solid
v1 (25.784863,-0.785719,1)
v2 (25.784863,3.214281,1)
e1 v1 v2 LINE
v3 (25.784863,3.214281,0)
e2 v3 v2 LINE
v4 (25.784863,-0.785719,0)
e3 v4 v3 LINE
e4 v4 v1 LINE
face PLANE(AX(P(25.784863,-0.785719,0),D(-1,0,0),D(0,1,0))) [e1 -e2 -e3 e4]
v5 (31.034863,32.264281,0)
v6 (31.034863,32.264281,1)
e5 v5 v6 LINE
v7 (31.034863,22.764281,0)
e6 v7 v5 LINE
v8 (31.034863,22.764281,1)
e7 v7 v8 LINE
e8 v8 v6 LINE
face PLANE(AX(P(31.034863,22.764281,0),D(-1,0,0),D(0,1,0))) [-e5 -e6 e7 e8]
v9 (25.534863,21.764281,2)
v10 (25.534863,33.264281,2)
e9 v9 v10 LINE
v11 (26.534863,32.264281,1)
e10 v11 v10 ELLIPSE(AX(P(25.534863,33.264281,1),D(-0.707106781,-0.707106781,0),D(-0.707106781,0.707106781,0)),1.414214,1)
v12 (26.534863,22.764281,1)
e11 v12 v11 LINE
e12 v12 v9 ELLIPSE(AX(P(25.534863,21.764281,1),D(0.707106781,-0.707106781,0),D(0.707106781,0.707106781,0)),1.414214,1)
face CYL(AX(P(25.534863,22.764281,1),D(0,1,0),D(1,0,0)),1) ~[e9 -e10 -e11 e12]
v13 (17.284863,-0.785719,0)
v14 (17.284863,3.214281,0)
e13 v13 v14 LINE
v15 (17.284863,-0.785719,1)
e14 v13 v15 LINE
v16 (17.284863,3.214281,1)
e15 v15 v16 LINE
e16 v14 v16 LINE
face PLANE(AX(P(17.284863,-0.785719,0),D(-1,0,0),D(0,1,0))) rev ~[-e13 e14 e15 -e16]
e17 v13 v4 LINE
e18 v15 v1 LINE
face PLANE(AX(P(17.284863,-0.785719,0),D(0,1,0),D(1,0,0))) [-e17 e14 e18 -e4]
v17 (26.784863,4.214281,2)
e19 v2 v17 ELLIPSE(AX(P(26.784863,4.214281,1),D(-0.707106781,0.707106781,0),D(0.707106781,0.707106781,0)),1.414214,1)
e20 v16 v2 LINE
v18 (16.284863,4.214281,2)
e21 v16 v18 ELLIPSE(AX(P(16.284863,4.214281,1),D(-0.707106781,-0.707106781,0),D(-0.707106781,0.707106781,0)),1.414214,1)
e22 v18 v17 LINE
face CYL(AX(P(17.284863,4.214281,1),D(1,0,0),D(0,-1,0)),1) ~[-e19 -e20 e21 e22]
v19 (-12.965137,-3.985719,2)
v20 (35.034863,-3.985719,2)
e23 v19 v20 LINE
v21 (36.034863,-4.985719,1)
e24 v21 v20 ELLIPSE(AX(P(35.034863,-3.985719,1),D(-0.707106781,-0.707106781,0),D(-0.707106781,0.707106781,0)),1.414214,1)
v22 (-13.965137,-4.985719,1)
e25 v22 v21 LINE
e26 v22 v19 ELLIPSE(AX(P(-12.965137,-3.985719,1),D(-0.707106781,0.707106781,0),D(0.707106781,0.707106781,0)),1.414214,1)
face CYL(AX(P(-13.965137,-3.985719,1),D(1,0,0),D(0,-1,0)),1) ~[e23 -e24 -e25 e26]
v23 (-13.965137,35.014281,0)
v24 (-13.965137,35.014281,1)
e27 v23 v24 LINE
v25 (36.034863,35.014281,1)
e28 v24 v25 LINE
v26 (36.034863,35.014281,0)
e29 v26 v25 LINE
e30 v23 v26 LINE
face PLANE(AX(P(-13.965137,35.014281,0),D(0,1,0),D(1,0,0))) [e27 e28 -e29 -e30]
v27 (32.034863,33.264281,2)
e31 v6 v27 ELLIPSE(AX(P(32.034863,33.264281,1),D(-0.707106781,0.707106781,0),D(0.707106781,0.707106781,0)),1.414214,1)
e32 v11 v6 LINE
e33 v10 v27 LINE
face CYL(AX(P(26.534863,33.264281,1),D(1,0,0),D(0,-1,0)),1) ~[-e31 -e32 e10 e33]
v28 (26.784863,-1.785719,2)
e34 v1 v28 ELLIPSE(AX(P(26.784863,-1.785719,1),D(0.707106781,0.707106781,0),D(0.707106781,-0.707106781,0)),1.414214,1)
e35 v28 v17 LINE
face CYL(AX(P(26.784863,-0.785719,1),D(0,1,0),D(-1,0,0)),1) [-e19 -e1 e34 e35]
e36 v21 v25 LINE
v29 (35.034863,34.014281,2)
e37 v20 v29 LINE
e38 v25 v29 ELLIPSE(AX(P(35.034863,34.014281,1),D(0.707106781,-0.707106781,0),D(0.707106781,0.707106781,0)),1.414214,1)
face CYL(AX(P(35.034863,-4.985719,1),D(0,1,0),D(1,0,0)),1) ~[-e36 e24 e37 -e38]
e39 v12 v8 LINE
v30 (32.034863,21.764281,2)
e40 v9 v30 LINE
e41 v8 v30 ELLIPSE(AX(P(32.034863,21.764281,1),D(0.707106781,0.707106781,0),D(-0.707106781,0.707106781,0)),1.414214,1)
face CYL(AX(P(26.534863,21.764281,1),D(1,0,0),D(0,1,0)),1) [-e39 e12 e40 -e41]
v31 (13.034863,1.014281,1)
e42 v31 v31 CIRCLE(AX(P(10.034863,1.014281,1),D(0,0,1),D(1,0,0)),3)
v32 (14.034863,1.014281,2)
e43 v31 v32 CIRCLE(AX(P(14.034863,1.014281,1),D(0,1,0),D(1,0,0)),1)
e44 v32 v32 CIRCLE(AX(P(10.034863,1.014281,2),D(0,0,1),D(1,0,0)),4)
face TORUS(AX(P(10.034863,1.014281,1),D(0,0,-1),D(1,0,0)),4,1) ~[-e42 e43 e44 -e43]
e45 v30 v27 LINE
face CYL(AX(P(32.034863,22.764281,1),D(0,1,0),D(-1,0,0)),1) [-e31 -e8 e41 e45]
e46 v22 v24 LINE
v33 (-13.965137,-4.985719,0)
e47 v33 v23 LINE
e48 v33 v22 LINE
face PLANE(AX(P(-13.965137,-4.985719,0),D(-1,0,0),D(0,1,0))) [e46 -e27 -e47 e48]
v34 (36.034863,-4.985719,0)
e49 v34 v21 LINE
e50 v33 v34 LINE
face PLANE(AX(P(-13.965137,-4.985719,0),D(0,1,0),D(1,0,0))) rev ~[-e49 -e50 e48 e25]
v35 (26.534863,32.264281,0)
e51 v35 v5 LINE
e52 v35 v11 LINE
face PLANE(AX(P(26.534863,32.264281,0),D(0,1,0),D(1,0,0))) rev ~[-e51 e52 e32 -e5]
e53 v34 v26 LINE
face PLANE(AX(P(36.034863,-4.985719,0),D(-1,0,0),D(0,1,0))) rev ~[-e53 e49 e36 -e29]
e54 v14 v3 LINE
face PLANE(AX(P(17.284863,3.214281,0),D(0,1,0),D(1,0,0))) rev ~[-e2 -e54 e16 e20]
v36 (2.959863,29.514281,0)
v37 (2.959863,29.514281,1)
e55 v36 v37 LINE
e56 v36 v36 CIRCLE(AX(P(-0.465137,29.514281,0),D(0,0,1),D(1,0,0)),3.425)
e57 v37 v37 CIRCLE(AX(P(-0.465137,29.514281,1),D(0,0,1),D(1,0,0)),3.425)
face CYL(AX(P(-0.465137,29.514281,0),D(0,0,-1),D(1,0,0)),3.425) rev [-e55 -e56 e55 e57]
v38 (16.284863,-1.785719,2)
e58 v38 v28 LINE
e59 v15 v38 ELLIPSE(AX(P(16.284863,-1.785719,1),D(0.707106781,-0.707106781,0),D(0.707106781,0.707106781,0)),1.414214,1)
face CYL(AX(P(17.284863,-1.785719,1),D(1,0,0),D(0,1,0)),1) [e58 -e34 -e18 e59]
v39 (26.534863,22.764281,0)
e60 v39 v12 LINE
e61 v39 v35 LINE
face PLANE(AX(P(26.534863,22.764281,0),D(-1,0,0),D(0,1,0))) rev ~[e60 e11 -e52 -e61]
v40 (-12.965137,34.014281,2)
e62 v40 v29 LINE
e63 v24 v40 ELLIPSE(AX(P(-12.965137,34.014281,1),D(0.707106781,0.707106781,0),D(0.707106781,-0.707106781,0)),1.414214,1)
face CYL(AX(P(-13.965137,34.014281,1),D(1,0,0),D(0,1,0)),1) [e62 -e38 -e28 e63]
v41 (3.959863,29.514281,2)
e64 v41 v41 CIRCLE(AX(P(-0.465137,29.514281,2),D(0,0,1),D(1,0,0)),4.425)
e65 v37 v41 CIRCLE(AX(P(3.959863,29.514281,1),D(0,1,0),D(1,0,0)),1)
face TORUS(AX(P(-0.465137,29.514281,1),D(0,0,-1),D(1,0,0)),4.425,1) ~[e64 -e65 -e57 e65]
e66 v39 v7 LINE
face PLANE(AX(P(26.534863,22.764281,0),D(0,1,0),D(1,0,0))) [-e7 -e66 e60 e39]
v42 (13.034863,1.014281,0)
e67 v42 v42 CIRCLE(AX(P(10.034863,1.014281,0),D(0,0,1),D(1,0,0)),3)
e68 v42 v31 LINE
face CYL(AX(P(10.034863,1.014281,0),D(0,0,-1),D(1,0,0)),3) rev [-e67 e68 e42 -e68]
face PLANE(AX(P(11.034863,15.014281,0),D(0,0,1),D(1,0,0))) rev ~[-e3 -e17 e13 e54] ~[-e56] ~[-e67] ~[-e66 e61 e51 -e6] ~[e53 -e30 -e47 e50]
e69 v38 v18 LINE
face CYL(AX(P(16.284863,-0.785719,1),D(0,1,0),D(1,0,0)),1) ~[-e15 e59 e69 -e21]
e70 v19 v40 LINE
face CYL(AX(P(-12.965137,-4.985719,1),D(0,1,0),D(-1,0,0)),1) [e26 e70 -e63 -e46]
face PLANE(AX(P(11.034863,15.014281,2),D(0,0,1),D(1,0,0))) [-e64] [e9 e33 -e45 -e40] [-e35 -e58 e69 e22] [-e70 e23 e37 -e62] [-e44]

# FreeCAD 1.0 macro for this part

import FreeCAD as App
import Part
import Sketcher

V = App.Vector


def edges_at(feature, points):
    """Names of the edges that pass closest to the given points."""
    edges = feature.Shape.Edges
    near = lambda p: min(range(len(edges)), key=lambda i: edges[i].distToShape(Part.Vertex(*p))[0])
    return sorted({f"Edge{near(p) + 1}" for p in points})

doc = App.newDocument("Part")
params = doc.addObject("Spreadsheet::Sheet", "Params")
for row, (alias, value) in enumerate([
    ("sketch1_diameter", "6 mm"),
    ("sketch1_diameter2", "6.85 mm"),
    ("sketch1_width", "50 mm"),
    ("sketch1_height", "40 mm"),
    ("sketch1_height2", "4 mm"),
    ("pad1_length", "2 mm"),
    ("fillet_radius", "1 mm"),
], start=1):
    params.set(f"A{row}", alias)
    params.set(f"B{row}", "=" + value)
    params.setAlias(f"B{row}", alias)

body = doc.addObject("PartDesign::Body", "Body")

# Sketch on XY plane
sketch1 = doc.addObject("Sketcher::SketchObject", "Sketch")
body.addObject(sketch1)
sketch1.AttachmentSupport = (doc.XY_Plane, [""])
sketch1.MapMode = "FlatFace"
sketch1.addGeometry([
    Part.LineSegment(V(-14, 35, 0), V(-14, -5, 0)),  # 0
    Part.LineSegment(V(-14, -5, 0), V(36, -5, 0)),  # 1
    Part.LineSegment(V(36, -5, 0), V(36, 35, 0)),  # 2
    Part.LineSegment(V(36, 35, 0), V(-14, 35, 0)),  # 3
    Part.Circle(V(10, 1, 0), V(0, 0, 1), 3),  # 4
    Part.LineSegment(V(25.8, -0.8, 0), V(17.3, -0.8, 0)),  # 5
    Part.LineSegment(V(17.3, -0.8, 0), V(17.3, 3.2, 0)),  # 6
    Part.LineSegment(V(17.3, 3.2, 0), V(25.8, 3.2, 0)),  # 7
    Part.LineSegment(V(25.8, 3.2, 0), V(25.8, -0.8, 0)),  # 8
    Part.Circle(V(-0.5, 29.5, 0), V(0, 0, 1), 3.4),  # 9
    Part.LineSegment(V(31, 22.8, 0), V(26.5, 22.8, 0)),  # 10
    Part.LineSegment(V(26.5, 22.8, 0), V(26.5, 32.3, 0)),  # 11
    Part.LineSegment(V(26.5, 32.3, 0), V(31, 32.3, 0)),  # 12
    Part.LineSegment(V(31, 32.3, 0), V(31, 22.8, 0)),  # 13
], False)
sketch1.addConstraint([
    Sketcher.Constraint("Coincident", 0, 2, 1, 1),
    Sketcher.Constraint("Coincident", 1, 2, 2, 1),
    Sketcher.Constraint("Coincident", 2, 2, 3, 1),
    Sketcher.Constraint("Coincident", 3, 2, 0, 1),
    Sketcher.Constraint("Coincident", 5, 2, 6, 1),
    Sketcher.Constraint("Coincident", 6, 2, 7, 1),
    Sketcher.Constraint("Coincident", 7, 2, 8, 1),
    Sketcher.Constraint("Coincident", 8, 2, 5, 1),
    Sketcher.Constraint("Coincident", 10, 2, 11, 1),
    Sketcher.Constraint("Coincident", 11, 2, 12, 1),
    Sketcher.Constraint("Coincident", 12, 2, 13, 1),
    Sketcher.Constraint("Coincident", 13, 2, 10, 1),
    Sketcher.Constraint("Vertical", 0),
    Sketcher.Constraint("Horizontal", 1),
    Sketcher.Constraint("Vertical", 2),
    Sketcher.Constraint("Horizontal", 3),
    Sketcher.Constraint("Horizontal", 5),
    Sketcher.Constraint("Vertical", 6),
    Sketcher.Constraint("Horizontal", 7),
    Sketcher.Constraint("Vertical", 8),
    Sketcher.Constraint("Horizontal", 10),
    Sketcher.Constraint("Vertical", 11),
    Sketcher.Constraint("Horizontal", 12),
    Sketcher.Constraint("Vertical", 13),
    Sketcher.Constraint("Diameter", 4, 6.0),
    Sketcher.Constraint("Diameter", 9, 6.85),
    Sketcher.Constraint("DistanceX", 1, 1, 1, 2, 50.0),
    Sketcher.Constraint("DistanceY", 0, 2, 0, 1, 40.0),
    Sketcher.Constraint("DistanceY", 6, 1, 6, 2, 4.0),
    Sketcher.Constraint("DistanceX", 5, 2, 5, 1, 8.5),
    Sketcher.Constraint("DistanceX", 10, 2, 10, 1, 4.5),
    Sketcher.Constraint("DistanceY", 11, 1, 11, 2, 9.5),
    Sketcher.Constraint("DistanceX", 0, 2, 4, 3, 24.0),
    Sketcher.Constraint("DistanceY", 0, 2, 4, 3, 6.0),
    Sketcher.Constraint("DistanceX", 9, 3, 11, 2, 27.0),
    Sketcher.Constraint("DistanceX", 12, 2, 2, 2, 5.0),
    Sketcher.Constraint("DistanceY", 4, 3, 9, 3, 28.5),
    Sketcher.Constraint("DistanceY", 5, 2, 4, 3, 1.8),
    Sketcher.Constraint("DistanceX", 4, 3, 5, 2, 7.25),
    Sketcher.Constraint("DistanceY", 10, 2, 2, 2, 12.25),
    Sketcher.Constraint("DistanceY", -1, 1, 4, 3, 1.014281),
    Sketcher.Constraint("DistanceX", -1, 1, 4, 3, 10.034863),
])
sketch1.setExpression("Constraints[24]", "Params.sketch1_diameter")
sketch1.setExpression("Constraints[25]", "Params.sketch1_diameter2")
sketch1.setExpression("Constraints[26]", "Params.sketch1_width")
sketch1.setExpression("Constraints[27]", "Params.sketch1_height")
sketch1.setExpression("Constraints[28]", "Params.sketch1_height2")
pad1 = doc.addObject("PartDesign::Pad", "Pad")
body.addObject(pad1)
pad1.Profile = sketch1
pad1.setExpression("Length", "Params.pad1_length")
doc.recompute()

fillet = doc.addObject("PartDesign::Fillet", "Fillet")
body.addObject(fillet)
fillet.Base = (pad1, edges_at(pad1, [
    (31.035, 27.514, 2),
    (28.785, 22.764, 2),
    (26.535, 27.514, 2),
    (28.785, 32.264, 2),
    (17.285, 1.214, 2),
    (21.535, -0.786, 2),
    (25.785, 1.214, 2),
    (21.535, 3.214, 2),
    (7.035, 1.014, 2),
    (-3.89, 29.514, 2),
    (11.035, 35.014, 2),
    (-13.965, 15.014, 2),
    (36.035, 15.014, 2),
    (11.035, -4.986, 2),
]))
fillet.setExpression("Radius", "Params.fillet_radius")

doc.recompute()
